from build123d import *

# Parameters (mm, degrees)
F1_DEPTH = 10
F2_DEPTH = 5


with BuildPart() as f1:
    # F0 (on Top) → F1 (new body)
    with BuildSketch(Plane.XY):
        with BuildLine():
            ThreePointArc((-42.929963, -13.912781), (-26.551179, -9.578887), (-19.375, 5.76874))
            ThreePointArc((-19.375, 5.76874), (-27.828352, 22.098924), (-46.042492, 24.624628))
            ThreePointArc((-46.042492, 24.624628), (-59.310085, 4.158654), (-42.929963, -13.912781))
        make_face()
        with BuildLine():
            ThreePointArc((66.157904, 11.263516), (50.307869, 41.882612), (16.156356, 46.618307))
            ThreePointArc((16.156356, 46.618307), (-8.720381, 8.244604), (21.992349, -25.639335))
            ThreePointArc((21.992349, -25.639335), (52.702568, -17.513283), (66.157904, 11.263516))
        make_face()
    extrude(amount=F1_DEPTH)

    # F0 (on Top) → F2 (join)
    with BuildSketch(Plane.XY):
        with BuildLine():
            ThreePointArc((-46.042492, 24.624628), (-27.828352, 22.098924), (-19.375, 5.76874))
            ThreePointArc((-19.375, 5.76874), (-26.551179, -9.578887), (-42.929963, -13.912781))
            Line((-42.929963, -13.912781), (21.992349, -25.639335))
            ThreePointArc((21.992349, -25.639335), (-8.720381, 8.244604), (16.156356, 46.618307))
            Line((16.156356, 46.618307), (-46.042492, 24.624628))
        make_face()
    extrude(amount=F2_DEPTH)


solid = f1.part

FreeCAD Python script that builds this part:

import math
import FreeCAD as App
import Part
import Sketcher
Q = App.Units.Quantity

doc = App.newDocument("Part")
body = doc.addObject("PartDesign::Body", "Body")
body.AllowCompound = True

sketch1 = body.newObject("Sketcher::SketchObject", "Sketch")
sketch1.AttachmentSupport = (doc.getObject("XY_Plane"), [""])
sketch1.MapMode = "FlatFace"
sketch1.addGeometry([
    Part.ArcOfCircle(Part.Circle(App.Vector(-39.374999, 5.768738, 0), App.Vector(0, 0, 1), 19.999999), math.radians(-100.238626), math.radians(0.000005)),
    Part.ArcOfCircle(Part.Circle(App.Vector(-39.374999, 5.76874, 0), App.Vector(0, 0, 1), 19.999999), math.radians(0), math.radians(109.473732)),
    Part.ArcOfCircle(Part.Circle(App.Vector(-39.375, 5.768739, 0), App.Vector(0, 0, 1), 20), math.radians(109.473729), math.radians(259.761376)),
    Part.ArcOfCircle(Part.Circle(App.Vector(28.657905, 11.263517, 0), App.Vector(0, 0, 1), 37.499999), math.radians(-0.000002), math.radians(109.473732)),
    Part.ArcOfCircle(Part.Circle(App.Vector(28.657904, 11.263515, 0), App.Vector(0, 0, 1), 37.5), math.radians(109.473729), math.radians(259.761378)),
    Part.ArcOfCircle(Part.Circle(App.Vector(28.657904, 11.263516, 0), App.Vector(0, 0, 1), 37.5), math.radians(-100.238622), math.radians(0.000001)),
], False)
sketch1.addConstraint([
    Sketcher.Constraint("Tangent", 0, 2, 1, 1),
    Sketcher.Constraint("Tangent", 1, 2, 2, 1),
    Sketcher.Constraint("Tangent", 2, 2, 0, 1),
    Sketcher.Constraint("Tangent", 3, 2, 4, 1),
    Sketcher.Constraint("Tangent", 4, 2, 5, 1),
    Sketcher.Constraint("Tangent", 5, 2, 3, 1),
    Sketcher.Constraint("Horizontal", 2, 3, 0, 2),
    Sketcher.Constraint("Horizontal", 4, 3, 5, 2),
    Sketcher.Constraint("Radius", 0, Q("19.999999 mm")),
    Sketcher.Constraint("Radius", 3, Q("37.499999 mm")),
    Sketcher.Constraint("DistanceX", 0, 3, -1, 1, Q("39.374999 mm")),
    Sketcher.Constraint("DistanceY", -1, 1, 0, 3, Q("5.768738 mm")),
    Sketcher.Constraint("DistanceY", -1, 1, 1, 2, Q("24.624628 mm")),
    Sketcher.Constraint("DistanceY", 2, 2, -1, 1, Q("13.912781 mm")),
    Sketcher.Constraint("DistanceX", -1, 1, 4, 2, Q("21.992349 mm")),
    Sketcher.Constraint("DistanceY", 0, 3, 3, 3, Q("5.494779 mm")),
    Sketcher.Constraint("DistanceX", 3, 2, 3, 3, Q("12.501549 mm")),
    Sketcher.Constraint("DistanceX", 1, 2, 3, 2, Q("62.198848 mm")),
])
pad1 = body.newObject("PartDesign::Pad", "Pad")
pad1.Profile = sketch1
pad1.Length = 10

sketch2 = body.newObject("Sketcher::SketchObject", "Sketch001")
sketch2.AttachmentSupport = (doc.getObject("XY_Plane"), [""])
sketch2.MapMode = "FlatFace"
sketch2.addGeometry([
    Part.ArcOfCircle(Part.Circle(App.Vector(-39.374999, 5.76874, 0), App.Vector(0, 0, 1), 19.999999), math.radians(0), math.radians(109.473732)),
    Part.ArcOfCircle(Part.Circle(App.Vector(-39.374999, 5.768738, 0), App.Vector(0, 0, 1), 19.999999), math.radians(-100.238626), math.radians(0.000005)),
    Part.LineSegment(App.Vector(-42.929963, -13.912781, 0), App.Vector(21.992349, -25.639335, 0)),
    Part.ArcOfCircle(Part.Circle(App.Vector(28.657904, 11.263515, 0), App.Vector(0, 0, 1), 37.5), math.radians(109.473729), math.radians(259.761378)),
    Part.LineSegment(App.Vector(16.156356, 46.618307, 0), App.Vector(-46.042492, 24.624628, 0)),
], False)
sketch2.addConstraint([
    Sketcher.Constraint("Coincident", 0, 1, 1, 2),
    Sketcher.Constraint("Coincident", 1, 1, 2, 1),
    Sketcher.Constraint("Coincident", 2, 2, 3, 2),
    Sketcher.Constraint("Coincident", 3, 1, 4, 1),
    Sketcher.Constraint("Coincident", 4, 2, 0, 2),
    Sketcher.Constraint("Coincident", 1, 3, 0, 3),
    Sketcher.Constraint("Radius", 0, Q("19.999999 mm")),
    Sketcher.Constraint("Radius", 3, Q("37.5 mm")),
    Sketcher.Constraint("DistanceX", 0, 3, -1, 1, Q("39.374999 mm")),
    Sketcher.Constraint("DistanceY", -1, 1, 0, 3, Q("5.76874 mm")),
    Sketcher.Constraint("DistanceY", -1, 1, 0, 1, Q("5.76874 mm")),
    Sketcher.Constraint("DistanceY", 1, 1, -1, 1, Q("13.912781 mm")),
    Sketcher.Constraint("DistanceX", -1, 1, 2, 2, Q("21.992349 mm")),
    Sketcher.Constraint("DistanceY", -1, 1, 4, 2, Q("24.624628 mm")),
    Sketcher.Constraint("DistanceY", 2, 2, 3, 3, Q("36.90285 mm")),
    Sketcher.Constraint("DistanceY", 3, 3, 3, 1, Q("35.354792 mm")),
    Sketcher.Constraint("DistanceY", 1, 3, 3, 1, Q("40.849569 mm")),
])
pad2 = body.newObject("PartDesign::Pad", "Pad001")
pad2.Profile = sketch2
pad2.Length = 5

doc.recompute()
